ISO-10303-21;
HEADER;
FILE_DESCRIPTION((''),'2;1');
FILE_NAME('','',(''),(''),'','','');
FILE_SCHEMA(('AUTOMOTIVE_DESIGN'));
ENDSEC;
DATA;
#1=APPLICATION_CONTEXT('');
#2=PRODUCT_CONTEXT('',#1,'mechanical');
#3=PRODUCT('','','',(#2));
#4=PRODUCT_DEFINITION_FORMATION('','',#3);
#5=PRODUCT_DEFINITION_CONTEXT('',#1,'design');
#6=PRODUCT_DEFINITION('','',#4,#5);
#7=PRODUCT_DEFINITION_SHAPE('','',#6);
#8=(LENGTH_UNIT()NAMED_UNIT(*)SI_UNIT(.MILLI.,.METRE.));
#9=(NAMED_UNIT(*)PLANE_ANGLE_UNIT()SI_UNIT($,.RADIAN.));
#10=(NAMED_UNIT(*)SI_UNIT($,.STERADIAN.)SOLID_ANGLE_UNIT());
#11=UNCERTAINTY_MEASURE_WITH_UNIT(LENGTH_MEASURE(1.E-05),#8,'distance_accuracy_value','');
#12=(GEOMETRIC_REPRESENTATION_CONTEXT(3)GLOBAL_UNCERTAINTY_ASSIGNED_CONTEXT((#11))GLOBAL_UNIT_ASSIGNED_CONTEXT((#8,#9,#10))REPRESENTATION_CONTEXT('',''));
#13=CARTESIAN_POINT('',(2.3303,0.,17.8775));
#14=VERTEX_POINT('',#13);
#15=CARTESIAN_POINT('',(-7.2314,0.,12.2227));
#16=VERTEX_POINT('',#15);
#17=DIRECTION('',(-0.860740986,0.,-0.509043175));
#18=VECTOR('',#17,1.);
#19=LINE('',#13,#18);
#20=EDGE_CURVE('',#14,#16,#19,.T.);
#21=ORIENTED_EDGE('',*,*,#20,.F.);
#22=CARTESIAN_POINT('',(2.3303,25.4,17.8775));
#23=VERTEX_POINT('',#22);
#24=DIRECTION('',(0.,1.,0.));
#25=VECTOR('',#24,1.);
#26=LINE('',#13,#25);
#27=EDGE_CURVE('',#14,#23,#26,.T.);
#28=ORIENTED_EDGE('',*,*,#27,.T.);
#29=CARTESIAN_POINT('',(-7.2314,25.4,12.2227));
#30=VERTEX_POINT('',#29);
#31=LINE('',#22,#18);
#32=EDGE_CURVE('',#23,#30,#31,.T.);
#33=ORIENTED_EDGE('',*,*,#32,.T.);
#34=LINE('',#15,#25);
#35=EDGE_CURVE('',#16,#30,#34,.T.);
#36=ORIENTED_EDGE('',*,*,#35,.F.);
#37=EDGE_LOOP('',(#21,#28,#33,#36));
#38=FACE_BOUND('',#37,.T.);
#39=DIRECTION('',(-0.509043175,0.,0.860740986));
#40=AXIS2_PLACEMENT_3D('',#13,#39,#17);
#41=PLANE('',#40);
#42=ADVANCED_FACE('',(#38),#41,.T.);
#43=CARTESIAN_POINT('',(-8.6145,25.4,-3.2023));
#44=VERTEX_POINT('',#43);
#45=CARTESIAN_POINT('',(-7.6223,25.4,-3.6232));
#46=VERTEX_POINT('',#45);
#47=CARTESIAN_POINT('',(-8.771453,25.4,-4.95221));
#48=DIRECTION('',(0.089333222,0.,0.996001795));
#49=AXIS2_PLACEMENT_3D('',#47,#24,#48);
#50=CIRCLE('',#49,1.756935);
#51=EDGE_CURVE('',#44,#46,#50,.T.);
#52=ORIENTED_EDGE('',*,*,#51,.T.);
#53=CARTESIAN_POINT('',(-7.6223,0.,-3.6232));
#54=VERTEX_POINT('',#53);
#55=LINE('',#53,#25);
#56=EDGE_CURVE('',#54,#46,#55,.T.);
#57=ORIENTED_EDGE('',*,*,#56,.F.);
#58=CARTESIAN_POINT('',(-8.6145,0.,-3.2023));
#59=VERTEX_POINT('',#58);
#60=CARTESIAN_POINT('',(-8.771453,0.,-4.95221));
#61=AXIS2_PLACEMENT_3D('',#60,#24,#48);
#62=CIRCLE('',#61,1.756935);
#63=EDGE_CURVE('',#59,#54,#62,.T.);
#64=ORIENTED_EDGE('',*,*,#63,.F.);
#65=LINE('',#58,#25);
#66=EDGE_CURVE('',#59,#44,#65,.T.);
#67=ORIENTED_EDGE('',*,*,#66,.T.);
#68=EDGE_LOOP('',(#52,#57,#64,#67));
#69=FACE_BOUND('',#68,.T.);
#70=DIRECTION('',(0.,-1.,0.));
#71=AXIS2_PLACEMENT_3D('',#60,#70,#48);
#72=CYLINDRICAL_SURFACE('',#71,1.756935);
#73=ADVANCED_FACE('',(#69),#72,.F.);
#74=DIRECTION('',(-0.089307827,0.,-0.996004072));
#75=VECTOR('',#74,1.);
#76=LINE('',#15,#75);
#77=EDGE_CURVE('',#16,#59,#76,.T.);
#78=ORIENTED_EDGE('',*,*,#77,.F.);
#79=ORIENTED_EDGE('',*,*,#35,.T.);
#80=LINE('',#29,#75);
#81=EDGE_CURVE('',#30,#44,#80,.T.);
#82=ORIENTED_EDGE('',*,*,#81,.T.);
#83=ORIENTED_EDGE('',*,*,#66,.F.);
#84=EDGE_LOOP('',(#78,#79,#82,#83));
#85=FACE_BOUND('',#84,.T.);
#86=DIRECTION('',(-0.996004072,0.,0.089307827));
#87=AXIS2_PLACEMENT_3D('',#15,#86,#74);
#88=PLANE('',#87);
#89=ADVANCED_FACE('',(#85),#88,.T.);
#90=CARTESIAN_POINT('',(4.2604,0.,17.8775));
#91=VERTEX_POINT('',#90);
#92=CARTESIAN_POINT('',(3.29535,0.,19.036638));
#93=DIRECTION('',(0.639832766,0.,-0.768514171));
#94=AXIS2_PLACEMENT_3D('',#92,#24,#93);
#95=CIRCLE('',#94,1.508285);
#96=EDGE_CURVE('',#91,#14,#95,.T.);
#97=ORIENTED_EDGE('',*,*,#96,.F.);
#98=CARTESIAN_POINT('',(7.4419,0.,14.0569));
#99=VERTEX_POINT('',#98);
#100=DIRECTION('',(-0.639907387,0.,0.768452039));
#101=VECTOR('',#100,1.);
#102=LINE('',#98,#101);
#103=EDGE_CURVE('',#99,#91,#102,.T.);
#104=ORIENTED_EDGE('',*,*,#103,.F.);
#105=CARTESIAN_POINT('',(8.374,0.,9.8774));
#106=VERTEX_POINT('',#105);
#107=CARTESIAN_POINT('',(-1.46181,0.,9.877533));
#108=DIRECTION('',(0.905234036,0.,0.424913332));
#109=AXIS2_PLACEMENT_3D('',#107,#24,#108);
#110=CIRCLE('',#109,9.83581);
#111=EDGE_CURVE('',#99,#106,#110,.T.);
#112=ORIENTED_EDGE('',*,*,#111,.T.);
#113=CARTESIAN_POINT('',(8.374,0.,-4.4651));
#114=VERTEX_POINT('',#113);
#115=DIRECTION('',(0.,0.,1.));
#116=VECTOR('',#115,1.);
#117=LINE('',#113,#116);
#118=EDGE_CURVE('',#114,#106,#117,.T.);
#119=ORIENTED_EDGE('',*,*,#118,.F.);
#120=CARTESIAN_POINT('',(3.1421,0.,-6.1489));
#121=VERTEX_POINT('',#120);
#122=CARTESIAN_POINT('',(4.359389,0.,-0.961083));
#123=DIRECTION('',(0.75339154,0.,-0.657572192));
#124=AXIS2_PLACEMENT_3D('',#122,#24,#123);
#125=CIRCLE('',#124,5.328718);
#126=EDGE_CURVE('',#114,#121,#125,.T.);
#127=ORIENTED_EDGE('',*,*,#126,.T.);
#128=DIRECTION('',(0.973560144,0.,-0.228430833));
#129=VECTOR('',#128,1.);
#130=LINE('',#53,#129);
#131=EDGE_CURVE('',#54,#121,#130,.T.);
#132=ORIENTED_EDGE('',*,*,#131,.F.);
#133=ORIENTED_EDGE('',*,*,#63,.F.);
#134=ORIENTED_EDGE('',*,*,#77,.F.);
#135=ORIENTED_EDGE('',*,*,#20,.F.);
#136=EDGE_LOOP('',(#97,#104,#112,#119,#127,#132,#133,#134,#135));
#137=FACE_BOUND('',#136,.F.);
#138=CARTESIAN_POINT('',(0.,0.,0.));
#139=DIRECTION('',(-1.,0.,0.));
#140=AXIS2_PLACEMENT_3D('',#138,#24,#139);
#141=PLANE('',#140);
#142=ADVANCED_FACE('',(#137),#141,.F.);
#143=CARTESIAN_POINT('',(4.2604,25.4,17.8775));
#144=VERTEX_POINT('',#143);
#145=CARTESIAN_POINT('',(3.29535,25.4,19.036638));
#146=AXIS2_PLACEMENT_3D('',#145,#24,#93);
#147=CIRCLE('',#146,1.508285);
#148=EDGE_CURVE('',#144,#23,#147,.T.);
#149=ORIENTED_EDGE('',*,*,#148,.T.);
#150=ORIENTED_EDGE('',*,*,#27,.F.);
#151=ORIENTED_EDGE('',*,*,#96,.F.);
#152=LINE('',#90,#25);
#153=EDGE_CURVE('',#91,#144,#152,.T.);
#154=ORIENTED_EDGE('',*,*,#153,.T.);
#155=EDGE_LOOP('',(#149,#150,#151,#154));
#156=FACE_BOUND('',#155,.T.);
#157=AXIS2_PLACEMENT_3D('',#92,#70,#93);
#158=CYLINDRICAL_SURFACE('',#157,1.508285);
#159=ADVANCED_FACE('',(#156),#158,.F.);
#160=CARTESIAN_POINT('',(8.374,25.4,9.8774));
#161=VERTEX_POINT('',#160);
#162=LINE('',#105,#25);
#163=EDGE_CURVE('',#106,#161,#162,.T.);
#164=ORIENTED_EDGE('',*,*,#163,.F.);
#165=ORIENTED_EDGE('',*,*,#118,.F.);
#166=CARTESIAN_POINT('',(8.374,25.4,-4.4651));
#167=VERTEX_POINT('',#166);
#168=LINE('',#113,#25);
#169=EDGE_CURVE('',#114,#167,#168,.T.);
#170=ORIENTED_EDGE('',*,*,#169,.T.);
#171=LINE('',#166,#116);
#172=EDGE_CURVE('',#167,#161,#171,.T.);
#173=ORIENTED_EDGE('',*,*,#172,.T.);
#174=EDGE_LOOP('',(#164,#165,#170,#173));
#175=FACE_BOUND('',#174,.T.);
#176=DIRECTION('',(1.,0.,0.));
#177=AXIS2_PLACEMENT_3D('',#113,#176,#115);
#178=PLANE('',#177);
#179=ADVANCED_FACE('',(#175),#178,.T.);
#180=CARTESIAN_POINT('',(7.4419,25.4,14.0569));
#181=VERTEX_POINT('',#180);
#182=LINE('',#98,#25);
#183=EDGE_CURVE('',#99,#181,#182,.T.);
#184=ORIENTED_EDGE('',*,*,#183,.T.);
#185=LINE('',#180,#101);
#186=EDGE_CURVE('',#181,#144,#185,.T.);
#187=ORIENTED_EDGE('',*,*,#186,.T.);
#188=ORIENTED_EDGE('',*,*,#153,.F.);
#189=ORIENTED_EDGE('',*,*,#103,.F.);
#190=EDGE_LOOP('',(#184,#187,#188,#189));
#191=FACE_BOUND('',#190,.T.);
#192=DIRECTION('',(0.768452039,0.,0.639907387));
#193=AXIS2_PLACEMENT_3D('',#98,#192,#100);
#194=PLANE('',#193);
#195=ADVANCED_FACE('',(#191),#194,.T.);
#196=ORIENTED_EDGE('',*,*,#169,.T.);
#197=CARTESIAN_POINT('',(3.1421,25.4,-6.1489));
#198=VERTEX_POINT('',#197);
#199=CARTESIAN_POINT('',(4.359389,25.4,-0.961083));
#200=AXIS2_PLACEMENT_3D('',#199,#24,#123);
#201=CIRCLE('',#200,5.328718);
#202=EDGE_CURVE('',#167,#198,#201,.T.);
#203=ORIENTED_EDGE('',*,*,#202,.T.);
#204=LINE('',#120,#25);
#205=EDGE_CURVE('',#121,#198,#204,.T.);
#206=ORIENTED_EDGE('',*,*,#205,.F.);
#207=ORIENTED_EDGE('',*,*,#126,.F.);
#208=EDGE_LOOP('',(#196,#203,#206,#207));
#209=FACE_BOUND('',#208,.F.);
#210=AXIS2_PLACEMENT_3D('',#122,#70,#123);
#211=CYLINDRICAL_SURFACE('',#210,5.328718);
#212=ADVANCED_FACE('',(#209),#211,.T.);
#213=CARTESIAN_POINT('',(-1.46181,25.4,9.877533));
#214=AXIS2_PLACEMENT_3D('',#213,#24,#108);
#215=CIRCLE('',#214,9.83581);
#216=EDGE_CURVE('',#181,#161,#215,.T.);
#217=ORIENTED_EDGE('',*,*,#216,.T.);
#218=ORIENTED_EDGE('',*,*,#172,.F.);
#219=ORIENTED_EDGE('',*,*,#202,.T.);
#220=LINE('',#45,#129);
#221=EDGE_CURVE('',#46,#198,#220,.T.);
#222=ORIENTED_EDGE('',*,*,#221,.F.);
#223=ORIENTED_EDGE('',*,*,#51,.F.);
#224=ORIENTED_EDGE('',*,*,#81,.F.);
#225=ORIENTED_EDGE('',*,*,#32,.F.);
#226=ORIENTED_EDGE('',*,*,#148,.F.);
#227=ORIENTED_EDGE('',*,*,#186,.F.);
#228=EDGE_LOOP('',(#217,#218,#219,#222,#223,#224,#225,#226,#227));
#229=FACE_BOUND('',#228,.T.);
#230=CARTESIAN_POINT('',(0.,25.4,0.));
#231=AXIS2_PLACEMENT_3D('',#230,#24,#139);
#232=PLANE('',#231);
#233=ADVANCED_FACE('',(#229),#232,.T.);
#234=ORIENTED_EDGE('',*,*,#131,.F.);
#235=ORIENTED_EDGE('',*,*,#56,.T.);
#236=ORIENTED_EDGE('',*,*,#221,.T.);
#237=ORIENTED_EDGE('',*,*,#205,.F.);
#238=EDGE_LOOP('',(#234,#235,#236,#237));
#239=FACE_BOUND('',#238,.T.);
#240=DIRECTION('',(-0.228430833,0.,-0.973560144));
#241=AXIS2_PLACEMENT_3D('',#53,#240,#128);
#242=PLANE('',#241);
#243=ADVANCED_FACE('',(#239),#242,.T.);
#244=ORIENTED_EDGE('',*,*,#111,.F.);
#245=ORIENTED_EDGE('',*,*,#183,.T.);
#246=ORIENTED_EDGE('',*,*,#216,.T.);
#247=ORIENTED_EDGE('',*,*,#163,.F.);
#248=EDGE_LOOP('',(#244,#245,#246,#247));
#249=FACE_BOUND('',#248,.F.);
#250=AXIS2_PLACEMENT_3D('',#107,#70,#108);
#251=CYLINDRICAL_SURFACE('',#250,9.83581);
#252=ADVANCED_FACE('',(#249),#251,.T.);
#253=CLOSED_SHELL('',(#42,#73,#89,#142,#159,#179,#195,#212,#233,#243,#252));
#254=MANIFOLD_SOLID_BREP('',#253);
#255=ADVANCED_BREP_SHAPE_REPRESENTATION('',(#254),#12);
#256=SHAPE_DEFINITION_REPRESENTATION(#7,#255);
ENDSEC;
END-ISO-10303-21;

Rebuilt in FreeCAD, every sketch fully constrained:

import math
import FreeCAD as App
import Part
import Sketcher
from FreeCAD import Vector
Q = App.Units.Quantity

doc = App.newDocument("Part")
body = doc.addObject("PartDesign::Body", "Body")

# Sketch on XZ plane
sketch1 = body.newObject("Sketcher::SketchObject", "Sketch")
sketch1.AttachmentSupport = (doc.getObject("XZ_Plane"), [""])
sketch1.MapMode = "FlatFace"
sketch1.addGeometry(Part.LineSegment(Vector(-8.6145, -3.2023, 0), Vector(-7.2314, 12.2227, 0)), False)
sketch1.addGeometry(Part.LineSegment(Vector(-7.2314, 12.2227, 0), Vector(2.3303, 17.8775, 0)), False)
sketch1.addGeometry(Part.ArcOfCircle(Part.Circle(Vector(3.2954, 19.0365, 0), Vector(0, 0, 1), 1.508147), math.radians(-129.784169), math.radians(-50.21875)), False)
sketch1.addGeometry(Part.LineSegment(Vector(4.2604, 17.8775, 0), Vector(7.4419, 14.0569, 0)), False)
sketch1.addGeometry(Part.ArcOfCircle(Part.Circle(Vector(-1.4622, 9.8774, 0), Vector(0, 0, 1), 9.83622), math.radians(0), math.radians(25.144915)), False)
sketch1.addGeometry(Part.LineSegment(Vector(8.374, 9.8774, 0), Vector(8.374, -4.4651, 0)), False)
sketch1.addGeometry(Part.ArcOfCircle(Part.Circle(Vector(4.3594, -0.9611, 0), Vector(0, 0, 1), 5.328699), math.radians(-103.205365), math.radians(-41.114918)), False)
sketch1.addGeometry(Part.LineSegment(Vector(3.1421, -6.1489, 0), Vector(-7.6223, -3.6232, 0)), False)
sketch1.addGeometry(Part.ArcOfCircle(Part.Circle(Vector(-8.7714, -4.952, 0), Vector(0, 0, 1), 1.756721), math.radians(49.147891), math.radians(84.875849)), False)
sketch1.addConstraint(Sketcher.Constraint("Coincident", 0, 2, 1, 1))
sketch1.addConstraint(Sketcher.Constraint("Coincident", 1, 2, 2, 1))
sketch1.addConstraint(Sketcher.Constraint("Coincident", 2, 2, 3, 1))
sketch1.addConstraint(Sketcher.Constraint("Coincident", 3, 2, 4, 2))
sketch1.addConstraint(Sketcher.Constraint("Coincident", 4, 1, 5, 1))
sketch1.addConstraint(Sketcher.Constraint("Coincident", 5, 2, 6, 2))
sketch1.addConstraint(Sketcher.Constraint("Coincident", 6, 1, 7, 1))
sketch1.addConstraint(Sketcher.Constraint("Coincident", 7, 2, 8, 1))
sketch1.addConstraint(Sketcher.Constraint("Coincident", 8, 2, 0, 1))
sketch1.addConstraint(Sketcher.Constraint("Vertical", 5))
sketch1.addConstraint(Sketcher.Constraint("Radius", 6, Q("0.2098 in")))
sketch1.addConstraint(Sketcher.Constraint("Radius", 2, 1.5081))
sketch1.addConstraint(Sketcher.Constraint("Radius", 4, 9.8362))
sketch1.addConstraint(Sketcher.Constraint("Radius", 8, 1.7567))
sketch1.addConstraint(Sketcher.Constraint("DistanceX", -1, 1, 3, 2, Q("0.293 in")))
sketch1.addConstraint(Sketcher.Constraint("DistanceX", 1, 2, 2, 3, Q("0.038 in")))
sketch1.addConstraint(Sketcher.Constraint("DistanceX", 2, 3, 2, 2, Q("0.038 in")))
sketch1.addConstraint(Sketcher.Constraint("DistanceY", 6, 1, 8, 2, Q("0.116 in")))
sketch1.addConstraint(Sketcher.Constraint("Distance", 7, Q("0.4353 in")))
sketch1.addConstraint(Sketcher.Constraint("DistanceY", 5, 2, 5, 1, 14.3425))
sketch1.addConstraint(Sketcher.Constraint("DistanceX", 0, 2, -1, 1, Q("0.2847 in")))
sketch1.addConstraint(Sketcher.Constraint("DistanceY", -1, 1, 0, 2, Q("0.4812 in")))
sketch1.addConstraint(Sketcher.Constraint("DistanceY", 5, 2, -1, 1, Q("0.1758 in")))
sketch1.addConstraint(Sketcher.Constraint("DistanceX", -1, 1, 6, 1, Q("0.1237 in")))
sketch1.addConstraint(Sketcher.Constraint("DistanceX", 7, 2, -1, 1, Q("0.3001 in")))
sketch1.addConstraint(Sketcher.Constraint("DistanceX", 4, 3, 2, 3, Q("0.1873 in")))
sketch1.addConstraint(Sketcher.Constraint("DistanceY", 4, 3, 2, 3, Q("0.3606 in")))
sketch1.addConstraint(Sketcher.Constraint("DistanceX", 4, 3, 6, 3, Q("0.2292 in")))
sketch1.addConstraint(Sketcher.Constraint("DistanceY", 6, 3, 2, 3, Q("0.7873 in")))
sketch1.addConstraint(Sketcher.Constraint("DistanceY", 8, 3, 1, 2, Q("0.8988 in")))
sketch1.addConstraint(Sketcher.Constraint("DistanceX", 3, 2, 4, 1, Q("0.0367 in")))
pad1 = body.newObject("PartDesign::Pad", "Pad")
pad1.Profile = sketch1
pad1.Length = Q("1 in")
pad1.Reversed = True

doc.recompute()
